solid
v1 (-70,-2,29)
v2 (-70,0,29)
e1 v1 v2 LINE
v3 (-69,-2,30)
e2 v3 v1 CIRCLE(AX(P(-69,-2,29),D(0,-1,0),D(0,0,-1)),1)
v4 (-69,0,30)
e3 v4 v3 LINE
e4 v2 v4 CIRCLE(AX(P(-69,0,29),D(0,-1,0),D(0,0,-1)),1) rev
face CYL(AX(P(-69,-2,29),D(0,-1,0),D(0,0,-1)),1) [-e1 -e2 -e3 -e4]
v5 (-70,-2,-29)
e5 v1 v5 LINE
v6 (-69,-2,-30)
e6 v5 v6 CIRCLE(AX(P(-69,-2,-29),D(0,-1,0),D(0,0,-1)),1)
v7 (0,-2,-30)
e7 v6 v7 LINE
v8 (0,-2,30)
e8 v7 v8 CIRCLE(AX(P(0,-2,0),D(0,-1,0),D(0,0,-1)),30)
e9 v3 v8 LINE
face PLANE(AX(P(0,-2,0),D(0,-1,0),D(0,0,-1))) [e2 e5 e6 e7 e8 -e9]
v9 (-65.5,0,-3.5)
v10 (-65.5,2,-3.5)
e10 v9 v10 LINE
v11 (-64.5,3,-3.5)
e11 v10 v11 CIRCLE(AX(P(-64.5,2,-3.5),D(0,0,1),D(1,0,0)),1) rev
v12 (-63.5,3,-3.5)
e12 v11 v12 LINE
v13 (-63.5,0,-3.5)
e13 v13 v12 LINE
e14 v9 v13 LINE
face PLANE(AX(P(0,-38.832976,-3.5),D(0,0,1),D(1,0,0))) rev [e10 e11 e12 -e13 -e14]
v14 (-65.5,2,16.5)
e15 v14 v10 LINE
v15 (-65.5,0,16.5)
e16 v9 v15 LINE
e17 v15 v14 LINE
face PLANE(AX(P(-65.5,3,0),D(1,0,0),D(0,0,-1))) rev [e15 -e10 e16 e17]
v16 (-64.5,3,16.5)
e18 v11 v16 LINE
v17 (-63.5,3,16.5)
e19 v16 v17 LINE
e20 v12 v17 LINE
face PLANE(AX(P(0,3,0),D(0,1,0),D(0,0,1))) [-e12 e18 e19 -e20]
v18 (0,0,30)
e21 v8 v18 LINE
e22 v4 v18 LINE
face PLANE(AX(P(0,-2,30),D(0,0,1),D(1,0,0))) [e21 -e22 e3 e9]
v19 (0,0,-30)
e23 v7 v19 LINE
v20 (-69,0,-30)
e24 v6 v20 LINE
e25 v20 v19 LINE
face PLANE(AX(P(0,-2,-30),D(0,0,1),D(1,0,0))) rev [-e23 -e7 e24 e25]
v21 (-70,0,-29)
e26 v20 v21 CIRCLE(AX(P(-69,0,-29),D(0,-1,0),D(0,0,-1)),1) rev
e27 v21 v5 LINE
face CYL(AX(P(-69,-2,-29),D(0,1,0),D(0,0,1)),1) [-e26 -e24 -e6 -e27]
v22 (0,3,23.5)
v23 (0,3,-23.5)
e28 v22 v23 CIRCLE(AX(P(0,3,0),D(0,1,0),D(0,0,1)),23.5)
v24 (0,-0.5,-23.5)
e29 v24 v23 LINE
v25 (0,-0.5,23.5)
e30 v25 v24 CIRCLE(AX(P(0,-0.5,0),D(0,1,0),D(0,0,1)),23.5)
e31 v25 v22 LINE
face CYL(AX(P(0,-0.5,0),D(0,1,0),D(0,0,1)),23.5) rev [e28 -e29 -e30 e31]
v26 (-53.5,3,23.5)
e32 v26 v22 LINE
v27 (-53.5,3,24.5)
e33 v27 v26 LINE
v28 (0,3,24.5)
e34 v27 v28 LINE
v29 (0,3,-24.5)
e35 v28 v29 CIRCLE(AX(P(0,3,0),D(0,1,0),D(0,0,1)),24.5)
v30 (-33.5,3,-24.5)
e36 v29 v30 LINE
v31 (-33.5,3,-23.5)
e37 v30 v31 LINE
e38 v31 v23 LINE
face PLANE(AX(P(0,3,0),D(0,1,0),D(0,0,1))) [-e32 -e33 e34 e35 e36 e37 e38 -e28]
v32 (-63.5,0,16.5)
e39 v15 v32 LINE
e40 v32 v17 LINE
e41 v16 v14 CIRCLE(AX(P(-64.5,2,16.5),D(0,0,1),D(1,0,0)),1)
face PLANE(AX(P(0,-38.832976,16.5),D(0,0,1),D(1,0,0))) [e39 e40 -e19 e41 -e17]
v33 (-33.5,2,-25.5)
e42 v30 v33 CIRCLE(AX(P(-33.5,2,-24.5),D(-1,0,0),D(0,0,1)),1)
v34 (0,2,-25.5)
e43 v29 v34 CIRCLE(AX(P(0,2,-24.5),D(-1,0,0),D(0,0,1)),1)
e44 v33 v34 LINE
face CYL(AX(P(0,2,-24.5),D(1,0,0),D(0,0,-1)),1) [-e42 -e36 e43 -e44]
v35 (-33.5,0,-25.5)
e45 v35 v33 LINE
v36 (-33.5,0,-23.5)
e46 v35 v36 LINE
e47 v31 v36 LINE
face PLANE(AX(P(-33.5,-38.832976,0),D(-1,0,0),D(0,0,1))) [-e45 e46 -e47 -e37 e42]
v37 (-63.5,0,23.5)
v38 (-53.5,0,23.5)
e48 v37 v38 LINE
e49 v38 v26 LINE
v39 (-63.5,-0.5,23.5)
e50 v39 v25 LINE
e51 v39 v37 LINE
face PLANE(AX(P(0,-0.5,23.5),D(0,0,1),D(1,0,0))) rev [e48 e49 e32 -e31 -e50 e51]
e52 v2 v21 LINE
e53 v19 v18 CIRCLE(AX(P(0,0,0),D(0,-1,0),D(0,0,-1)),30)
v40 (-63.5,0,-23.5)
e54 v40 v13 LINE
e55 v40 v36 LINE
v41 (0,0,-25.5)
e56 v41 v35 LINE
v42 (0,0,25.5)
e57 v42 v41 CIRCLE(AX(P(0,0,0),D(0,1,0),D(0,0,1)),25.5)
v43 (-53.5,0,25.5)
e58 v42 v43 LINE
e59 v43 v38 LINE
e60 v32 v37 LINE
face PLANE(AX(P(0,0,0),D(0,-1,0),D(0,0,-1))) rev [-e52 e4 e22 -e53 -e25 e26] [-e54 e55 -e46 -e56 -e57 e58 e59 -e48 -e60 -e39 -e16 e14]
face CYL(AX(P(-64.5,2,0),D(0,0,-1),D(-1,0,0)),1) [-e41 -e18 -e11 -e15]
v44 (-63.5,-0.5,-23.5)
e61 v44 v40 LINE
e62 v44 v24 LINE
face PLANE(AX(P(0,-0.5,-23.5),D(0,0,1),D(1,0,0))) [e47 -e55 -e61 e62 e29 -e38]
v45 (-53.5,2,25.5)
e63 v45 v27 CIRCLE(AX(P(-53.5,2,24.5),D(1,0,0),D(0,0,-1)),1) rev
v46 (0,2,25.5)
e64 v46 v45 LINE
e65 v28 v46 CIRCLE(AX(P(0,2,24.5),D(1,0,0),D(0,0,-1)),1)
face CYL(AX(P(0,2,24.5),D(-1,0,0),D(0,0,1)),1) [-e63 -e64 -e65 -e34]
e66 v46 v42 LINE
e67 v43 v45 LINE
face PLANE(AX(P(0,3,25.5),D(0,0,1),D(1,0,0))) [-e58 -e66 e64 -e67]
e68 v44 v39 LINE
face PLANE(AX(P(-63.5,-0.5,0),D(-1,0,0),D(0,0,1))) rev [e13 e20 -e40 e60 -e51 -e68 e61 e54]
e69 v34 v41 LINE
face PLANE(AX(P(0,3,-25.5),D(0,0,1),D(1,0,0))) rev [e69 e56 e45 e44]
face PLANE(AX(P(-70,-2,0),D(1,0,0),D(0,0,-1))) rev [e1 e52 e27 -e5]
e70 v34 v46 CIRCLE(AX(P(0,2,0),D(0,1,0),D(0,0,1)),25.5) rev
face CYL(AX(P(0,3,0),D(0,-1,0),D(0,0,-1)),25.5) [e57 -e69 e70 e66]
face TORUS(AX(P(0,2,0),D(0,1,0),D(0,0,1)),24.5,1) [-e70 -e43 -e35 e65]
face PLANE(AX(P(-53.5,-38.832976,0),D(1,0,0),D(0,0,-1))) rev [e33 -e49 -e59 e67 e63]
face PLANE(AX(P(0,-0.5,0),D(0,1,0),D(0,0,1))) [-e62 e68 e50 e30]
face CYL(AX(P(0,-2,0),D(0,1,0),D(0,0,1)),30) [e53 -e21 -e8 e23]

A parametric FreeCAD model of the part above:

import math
import FreeCAD as App
import Part
import Sketcher

V = App.Vector
Q = App.Units.Quantity


def edges_at(feature, points):
    """Names of the edges that pass closest to the given points."""
    edges = feature.Shape.Edges
    near = lambda p: min(range(len(edges)), key=lambda i: edges[i].distToShape(Part.Vertex(*p))[0])
    return sorted({f"Edge{near(p) + 1}" for p in points})

doc = App.newDocument("Part")
body = doc.addObject("PartDesign::Body", "Body")

# Sketch on XZ plane
sketch1 = body.newObject("Sketcher::SketchObject", "Sketch")
sketch1.AttachmentSupport = (doc.getObject("XZ_Plane"), [""])
sketch1.MapMode = "FlatFace"
sketch1.addGeometry([
    Part.LineSegment(V(-65.5, 25.5, 0), V(0, 25.5, 0)),
    Part.ArcOfCircle(Part.Circle(V(0, 0, 0), V(0, 0, 1), 25.5), math.radians(-90), math.radians(90)),
    Part.LineSegment(V(0, -25.5, 0), V(-65.5, -25.5, 0)),
    Part.LineSegment(V(-65.5, -25.5, 0), V(-65.5, 25.5, 0)),
], False)
sketch1.addConstraint([
    Sketcher.Constraint("Tangent", 0, 2, 1, 2),
    Sketcher.Constraint("Tangent", 1, 1, 2, 1),
    Sketcher.Constraint("Coincident", 2, 2, 3, 1),
    Sketcher.Constraint("Coincident", 3, 2, 0, 1),
    Sketcher.Constraint("Horizontal", 0),
    Sketcher.Constraint("Horizontal", 2),
    Sketcher.Constraint("Vertical", 3),
    Sketcher.Constraint("Coincident", 1, 3, -1, 1),
    Sketcher.Constraint("Radius", 1, Q("25.5 mm")),
    Sketcher.Constraint("DistanceX", 0, 1, 0, 2, Q("65.5 mm")),
])
pad1 = body.newObject("PartDesign::Pad", "Pad")
pad1.Profile = sketch1
pad1.Length = 3
pad1.Reversed = True

# Sketch on XZ plane
sketch2 = body.newObject("Sketcher::SketchObject", "Sketch001")
sketch2.AttachmentSupport = (doc.getObject("XZ_Plane"), [""])
sketch2.MapMode = "FlatFace"
sketch2.AttachmentOffset = App.Placement(V(0, 0, 2), App.Rotation())
sketch2.addGeometry([
    Part.LineSegment(V(-70, -30, 0), V(0, -30, 0)),
    Part.ArcOfCircle(Part.Circle(V(0, 0, 0), V(0, 0, 1), 30), math.radians(-90), math.radians(90)),
    Part.LineSegment(V(0, 30, 0), V(-70, 30, 0)),
    Part.LineSegment(V(-70, 30, 0), V(-70, -30, 0)),
], False)
sketch2.addConstraint([
    Sketcher.Constraint("Tangent", 0, 2, 1, 1),
    Sketcher.Constraint("Tangent", 1, 2, 2, 1),
    Sketcher.Constraint("Coincident", 2, 2, 3, 1),
    Sketcher.Constraint("Coincident", 3, 2, 0, 1),
    Sketcher.Constraint("Horizontal", 0),
    Sketcher.Constraint("Horizontal", 2),
    Sketcher.Constraint("Vertical", 3),
    Sketcher.Constraint("Coincident", 1, 3, -1, 1),
    Sketcher.Constraint("Radius", 1, Q("30 mm")),
    Sketcher.Constraint("DistanceX", 0, 1, 0, 2, Q("70 mm")),
])
pad2 = body.newObject("PartDesign::Pad", "Pad001")
pad2.Profile = sketch2
pad2.Length = 2
pad2.Reversed = True

# Sketch on XZ plane
sketch3 = body.newObject("Sketcher::SketchObject", "Sketch002")
sketch3.AttachmentSupport = (doc.getObject("XZ_Plane"), [""])
sketch3.MapMode = "FlatFace"
sketch3.AttachmentOffset = App.Placement(V(0, 0, -3), App.Rotation())
sketch3.addGeometry([
    Part.LineSegment(V(-63.5, 23.5, 0), V(0, 23.5, 0)),
    Part.ArcOfCircle(Part.Circle(V(0, 0, 0), V(0, 0, 1), 23.5), math.radians(-90), math.radians(90)),
    Part.LineSegment(V(0, -23.5, 0), V(-63.5, -23.5, 0)),
    Part.LineSegment(V(-63.5, -23.5, 0), V(-63.5, 23.5, 0)),
], False)
sketch3.addConstraint([
    Sketcher.Constraint("Tangent", 0, 2, 1, 2),
    Sketcher.Constraint("Tangent", 1, 1, 2, 1),
    Sketcher.Constraint("Coincident", 2, 2, 3, 1),
    Sketcher.Constraint("Coincident", 3, 2, 0, 1),
    Sketcher.Constraint("Horizontal", 0),
    Sketcher.Constraint("Horizontal", 2),
    Sketcher.Constraint("Vertical", 3),
    Sketcher.Constraint("Coincident", 1, 3, -1, 1),
    Sketcher.Constraint("Radius", 1, Q("23.5 mm")),
    Sketcher.Constraint("DistanceX", 0, 1, 0, 2, Q("63.5 mm")),
])
pocket1 = body.newObject("PartDesign::Pocket", "Pocket")
pocket1.Profile = sketch3
pocket1.Length = 3.5
pocket1.Reversed = True
doc.recompute()

fillet = body.newObject("PartDesign::Fillet", "Fillet")
fillet.Base = (pocket1, edges_at(pocket1, [(-70, -1, -30), (-70, -1, 30)]))
fillet.Radius = 1

# Sketch on XZ plane
sketch4 = body.newObject("Sketcher::SketchObject", "Sketch003")
sketch4.AttachmentSupport = (doc.getObject("XZ_Plane"), [""])
sketch4.MapMode = "FlatFace"
sketch4.AttachmentOffset = App.Placement(V(0, 0, -3), App.Rotation())
sketch4.addGeometry([
    Part.LineSegment(V(-65.5, 16.5, 0), V(-65.5, 25.5, 0)),  # 0
    Part.LineSegment(V(-65.5, 25.5, 0), V(-53.5, 25.5, 0)),  # 1
    Part.LineSegment(V(-53.5, 25.5, 0), V(-53.5, 16.5, 0)),  # 2
    Part.LineSegment(V(-53.5, 16.5, 0), V(-65.5, 16.5, 0)),  # 3
    Part.LineSegment(V(-65.5, -25.5, 0), V(-65.5, -3.5, 0)),  # 4
    Part.LineSegment(V(-65.5, -3.5, 0), V(-33.5, -3.5, 0)),  # 5
    Part.LineSegment(V(-33.5, -3.5, 0), V(-33.5, -25.5, 0)),  # 6
    Part.LineSegment(V(-33.5, -25.5, 0), V(-65.5, -25.5, 0)),  # 7
], False)
sketch4.addConstraint([
    Sketcher.Constraint("Coincident", 0, 2, 1, 1),
    Sketcher.Constraint("Coincident", 1, 2, 2, 1),
    Sketcher.Constraint("Coincident", 2, 2, 3, 1),
    Sketcher.Constraint("Coincident", 3, 2, 0, 1),
    Sketcher.Constraint("Coincident", 4, 2, 5, 1),
    Sketcher.Constraint("Coincident", 5, 2, 6, 1),
    Sketcher.Constraint("Coincident", 6, 2, 7, 1),
    Sketcher.Constraint("Coincident", 7, 2, 4, 1),
    Sketcher.Constraint("Vertical", 0),
    Sketcher.Constraint("Horizontal", 1),
    Sketcher.Constraint("Vertical", 2),
    Sketcher.Constraint("Horizontal", 3),
    Sketcher.Constraint("Vertical", 4),
    Sketcher.Constraint("Horizontal", 5),
    Sketcher.Constraint("Vertical", 6),
    Sketcher.Constraint("Horizontal", 7),
    Sketcher.Constraint("Symmetric", 0, 2, 7, 2, -1),
    Sketcher.Constraint("DistanceX", 1, 1, 1, 2, Q("12 mm")),
    Sketcher.Constraint("DistanceX", 5, 1, 5, 2, Q("32 mm")),
    Sketcher.Constraint("DistanceY", 0, 1, 0, 2, Q("9 mm")),
    Sketcher.Constraint("DistanceY", 4, 1, 4, 2, Q("22 mm")),
    Sketcher.Constraint("DistanceY", 4, 2, 3, 2, Q("20 mm")),
    Sketcher.Constraint("DistanceX", 0, 2, -1, 1, Q("65.5 mm")),
])
pocket2 = body.newObject("PartDesign::Pocket", "Pocket001")
pocket2.Profile = sketch4
pocket2.Length = 3
pocket2.Reversed = True
doc.recompute()

fillet2 = body.newObject("PartDesign::Fillet", "Fillet001")
fillet2.Base = (pocket2, edges_at(pocket2, [(-65.5, 3, 6.5)]))
fillet2.Radius = 1
doc.recompute()

fillet3 = body.newObject("PartDesign::Fillet", "Fillet002")
fillet3.Base = (fillet2, edges_at(fillet2, [(25.5, 3, 0), (-16.75, 3, -25.5), (-26.75, 3, 25.5)]))
fillet3.Radius = 1

doc.recompute()
